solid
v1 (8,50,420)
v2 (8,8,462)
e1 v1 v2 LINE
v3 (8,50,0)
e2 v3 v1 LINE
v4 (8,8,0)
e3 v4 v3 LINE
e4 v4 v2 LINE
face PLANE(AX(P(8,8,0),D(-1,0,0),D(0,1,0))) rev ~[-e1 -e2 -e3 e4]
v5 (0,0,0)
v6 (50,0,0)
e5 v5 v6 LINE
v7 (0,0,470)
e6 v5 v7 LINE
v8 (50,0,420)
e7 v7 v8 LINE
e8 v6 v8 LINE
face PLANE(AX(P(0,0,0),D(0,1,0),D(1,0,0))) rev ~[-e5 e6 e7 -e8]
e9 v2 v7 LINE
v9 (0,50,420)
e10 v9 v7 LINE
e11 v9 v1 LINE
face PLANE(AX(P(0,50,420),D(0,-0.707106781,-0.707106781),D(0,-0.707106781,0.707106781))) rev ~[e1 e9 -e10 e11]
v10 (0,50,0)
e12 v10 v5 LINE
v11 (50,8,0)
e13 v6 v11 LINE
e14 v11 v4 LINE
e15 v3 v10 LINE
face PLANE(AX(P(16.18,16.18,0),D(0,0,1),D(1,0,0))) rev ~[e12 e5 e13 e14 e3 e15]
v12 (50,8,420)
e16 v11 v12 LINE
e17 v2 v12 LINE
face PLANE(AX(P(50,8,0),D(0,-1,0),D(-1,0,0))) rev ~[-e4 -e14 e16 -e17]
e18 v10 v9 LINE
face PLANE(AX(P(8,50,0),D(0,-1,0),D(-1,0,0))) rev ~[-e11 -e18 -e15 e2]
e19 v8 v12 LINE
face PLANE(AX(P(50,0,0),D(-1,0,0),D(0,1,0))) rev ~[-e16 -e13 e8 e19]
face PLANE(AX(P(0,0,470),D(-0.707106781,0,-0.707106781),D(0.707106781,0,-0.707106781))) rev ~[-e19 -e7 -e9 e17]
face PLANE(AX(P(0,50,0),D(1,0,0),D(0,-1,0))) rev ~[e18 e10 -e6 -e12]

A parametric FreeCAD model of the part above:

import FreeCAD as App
import Part
import Sketcher
from FreeCAD import Vector


def add_polygon(sketch, points):
    """Adds a closed chain of lines whose ends are joined by coincident constraints."""
    first, n = sketch.GeometryCount, len(points)
    for a, b in zip(points, points[1:] + points[:1]):
        sketch.addGeometry(Part.LineSegment(App.Vector(*a, 0), App.Vector(*b, 0)), False)
    for i in range(n):
        sketch.addConstraint(Sketcher.Constraint("Coincident", first + i, 2, first + (i + 1) % n, 1))

doc = App.newDocument("Part")
body = doc.addObject("PartDesign::Body", "Body")

sketch1 = doc.addObject("Sketcher::SketchObject", "Sketch")
body.addObject(sketch1)
sketch1.AttachmentSupport = (doc.XY_Plane, [""])
sketch1.MapMode = "FlatFace"
add_polygon(sketch1, [(0, 50), (0, 0), (50, 0), (50, 8), (8, 8), (8, 50)])
sketch1.addConstraint(Sketcher.Constraint("Vertical", 0))
sketch1.addConstraint(Sketcher.Constraint("Horizontal", 1))
sketch1.addConstraint(Sketcher.Constraint("Vertical", 2))
sketch1.addConstraint(Sketcher.Constraint("Horizontal", 3))
sketch1.addConstraint(Sketcher.Constraint("Vertical", 4))
sketch1.addConstraint(Sketcher.Constraint("Horizontal", 5))
sketch1.addConstraint(Sketcher.Constraint("Coincident", 0, 2, -1, 1))
sketch1.addConstraint(Sketcher.Constraint("Equal", 1, 0))
sketch1.addConstraint(Sketcher.Constraint("Equal", 5, 2))
sketch1.addConstraint(Sketcher.Constraint("DistanceX", 1, 1, 1, 2, 50.0))
sketch1.addConstraint(Sketcher.Constraint("DistanceX", 3, 2, 3, 1, 42.0))
pad1 = doc.addObject("PartDesign::Pad", "Pad")
body.addObject(pad1)
pad1.Profile = sketch1
pad1.Length = 470

sketch2 = doc.addObject("Sketcher::SketchObject", "Sketch001")
body.addObject(sketch2)
sketch2.AttachmentSupport = (doc.XZ_Plane, [""])
sketch2.MapMode = "FlatFace"
add_polygon(sketch2, [(50, 470), (0, 470), (50, 420)])
sketch2.addConstraint(Sketcher.Constraint("Horizontal", 0))
sketch2.addConstraint(Sketcher.Constraint("Vertical", 2))
sketch2.addConstraint(Sketcher.Constraint("PointOnObject", 0, 2, -2))
sketch2.addConstraint(Sketcher.Constraint("Equal", 0, 2))
sketch2.addConstraint(Sketcher.Constraint("DistanceX", 0, 2, 0, 1, 50.0))
sketch2.addConstraint(Sketcher.Constraint("DistanceY", -1, 1, 0, 2, 470.0))
pocket1 = doc.addObject("PartDesign::Pocket", "Pocket")
body.addObject(pocket1)
pocket1.Profile = sketch2
pocket1.Length = 8

sketch3 = doc.addObject("Sketcher::SketchObject", "Sketch002")
body.addObject(sketch3)
sketch3.AttachmentSupport = (doc.YZ_Plane, [""])
sketch3.MapMode = "FlatFace"
add_polygon(sketch3, [(50, 420), (0, 470), (50, 470)])
sketch3.addConstraint(Sketcher.Constraint("Horizontal", 1))
sketch3.addConstraint(Sketcher.Constraint("Vertical", 2))
sketch3.addConstraint(Sketcher.Constraint("PointOnObject", 0, 2, -2))
sketch3.addConstraint(Sketcher.Constraint("Equal", 1, 2))
sketch3.addConstraint(Sketcher.Constraint("DistanceX", 1, 1, 1, 2, 50.0))
sketch3.addConstraint(Sketcher.Constraint("DistanceY", -1, 1, 0, 2, 470.0))
pocket2 = doc.addObject("PartDesign::Pocket", "Pocket001")
body.addObject(pocket2)
pocket2.Profile = sketch3
pocket2.Type = "ThroughAll"
pocket2.Reversed = True

doc.recompute()
